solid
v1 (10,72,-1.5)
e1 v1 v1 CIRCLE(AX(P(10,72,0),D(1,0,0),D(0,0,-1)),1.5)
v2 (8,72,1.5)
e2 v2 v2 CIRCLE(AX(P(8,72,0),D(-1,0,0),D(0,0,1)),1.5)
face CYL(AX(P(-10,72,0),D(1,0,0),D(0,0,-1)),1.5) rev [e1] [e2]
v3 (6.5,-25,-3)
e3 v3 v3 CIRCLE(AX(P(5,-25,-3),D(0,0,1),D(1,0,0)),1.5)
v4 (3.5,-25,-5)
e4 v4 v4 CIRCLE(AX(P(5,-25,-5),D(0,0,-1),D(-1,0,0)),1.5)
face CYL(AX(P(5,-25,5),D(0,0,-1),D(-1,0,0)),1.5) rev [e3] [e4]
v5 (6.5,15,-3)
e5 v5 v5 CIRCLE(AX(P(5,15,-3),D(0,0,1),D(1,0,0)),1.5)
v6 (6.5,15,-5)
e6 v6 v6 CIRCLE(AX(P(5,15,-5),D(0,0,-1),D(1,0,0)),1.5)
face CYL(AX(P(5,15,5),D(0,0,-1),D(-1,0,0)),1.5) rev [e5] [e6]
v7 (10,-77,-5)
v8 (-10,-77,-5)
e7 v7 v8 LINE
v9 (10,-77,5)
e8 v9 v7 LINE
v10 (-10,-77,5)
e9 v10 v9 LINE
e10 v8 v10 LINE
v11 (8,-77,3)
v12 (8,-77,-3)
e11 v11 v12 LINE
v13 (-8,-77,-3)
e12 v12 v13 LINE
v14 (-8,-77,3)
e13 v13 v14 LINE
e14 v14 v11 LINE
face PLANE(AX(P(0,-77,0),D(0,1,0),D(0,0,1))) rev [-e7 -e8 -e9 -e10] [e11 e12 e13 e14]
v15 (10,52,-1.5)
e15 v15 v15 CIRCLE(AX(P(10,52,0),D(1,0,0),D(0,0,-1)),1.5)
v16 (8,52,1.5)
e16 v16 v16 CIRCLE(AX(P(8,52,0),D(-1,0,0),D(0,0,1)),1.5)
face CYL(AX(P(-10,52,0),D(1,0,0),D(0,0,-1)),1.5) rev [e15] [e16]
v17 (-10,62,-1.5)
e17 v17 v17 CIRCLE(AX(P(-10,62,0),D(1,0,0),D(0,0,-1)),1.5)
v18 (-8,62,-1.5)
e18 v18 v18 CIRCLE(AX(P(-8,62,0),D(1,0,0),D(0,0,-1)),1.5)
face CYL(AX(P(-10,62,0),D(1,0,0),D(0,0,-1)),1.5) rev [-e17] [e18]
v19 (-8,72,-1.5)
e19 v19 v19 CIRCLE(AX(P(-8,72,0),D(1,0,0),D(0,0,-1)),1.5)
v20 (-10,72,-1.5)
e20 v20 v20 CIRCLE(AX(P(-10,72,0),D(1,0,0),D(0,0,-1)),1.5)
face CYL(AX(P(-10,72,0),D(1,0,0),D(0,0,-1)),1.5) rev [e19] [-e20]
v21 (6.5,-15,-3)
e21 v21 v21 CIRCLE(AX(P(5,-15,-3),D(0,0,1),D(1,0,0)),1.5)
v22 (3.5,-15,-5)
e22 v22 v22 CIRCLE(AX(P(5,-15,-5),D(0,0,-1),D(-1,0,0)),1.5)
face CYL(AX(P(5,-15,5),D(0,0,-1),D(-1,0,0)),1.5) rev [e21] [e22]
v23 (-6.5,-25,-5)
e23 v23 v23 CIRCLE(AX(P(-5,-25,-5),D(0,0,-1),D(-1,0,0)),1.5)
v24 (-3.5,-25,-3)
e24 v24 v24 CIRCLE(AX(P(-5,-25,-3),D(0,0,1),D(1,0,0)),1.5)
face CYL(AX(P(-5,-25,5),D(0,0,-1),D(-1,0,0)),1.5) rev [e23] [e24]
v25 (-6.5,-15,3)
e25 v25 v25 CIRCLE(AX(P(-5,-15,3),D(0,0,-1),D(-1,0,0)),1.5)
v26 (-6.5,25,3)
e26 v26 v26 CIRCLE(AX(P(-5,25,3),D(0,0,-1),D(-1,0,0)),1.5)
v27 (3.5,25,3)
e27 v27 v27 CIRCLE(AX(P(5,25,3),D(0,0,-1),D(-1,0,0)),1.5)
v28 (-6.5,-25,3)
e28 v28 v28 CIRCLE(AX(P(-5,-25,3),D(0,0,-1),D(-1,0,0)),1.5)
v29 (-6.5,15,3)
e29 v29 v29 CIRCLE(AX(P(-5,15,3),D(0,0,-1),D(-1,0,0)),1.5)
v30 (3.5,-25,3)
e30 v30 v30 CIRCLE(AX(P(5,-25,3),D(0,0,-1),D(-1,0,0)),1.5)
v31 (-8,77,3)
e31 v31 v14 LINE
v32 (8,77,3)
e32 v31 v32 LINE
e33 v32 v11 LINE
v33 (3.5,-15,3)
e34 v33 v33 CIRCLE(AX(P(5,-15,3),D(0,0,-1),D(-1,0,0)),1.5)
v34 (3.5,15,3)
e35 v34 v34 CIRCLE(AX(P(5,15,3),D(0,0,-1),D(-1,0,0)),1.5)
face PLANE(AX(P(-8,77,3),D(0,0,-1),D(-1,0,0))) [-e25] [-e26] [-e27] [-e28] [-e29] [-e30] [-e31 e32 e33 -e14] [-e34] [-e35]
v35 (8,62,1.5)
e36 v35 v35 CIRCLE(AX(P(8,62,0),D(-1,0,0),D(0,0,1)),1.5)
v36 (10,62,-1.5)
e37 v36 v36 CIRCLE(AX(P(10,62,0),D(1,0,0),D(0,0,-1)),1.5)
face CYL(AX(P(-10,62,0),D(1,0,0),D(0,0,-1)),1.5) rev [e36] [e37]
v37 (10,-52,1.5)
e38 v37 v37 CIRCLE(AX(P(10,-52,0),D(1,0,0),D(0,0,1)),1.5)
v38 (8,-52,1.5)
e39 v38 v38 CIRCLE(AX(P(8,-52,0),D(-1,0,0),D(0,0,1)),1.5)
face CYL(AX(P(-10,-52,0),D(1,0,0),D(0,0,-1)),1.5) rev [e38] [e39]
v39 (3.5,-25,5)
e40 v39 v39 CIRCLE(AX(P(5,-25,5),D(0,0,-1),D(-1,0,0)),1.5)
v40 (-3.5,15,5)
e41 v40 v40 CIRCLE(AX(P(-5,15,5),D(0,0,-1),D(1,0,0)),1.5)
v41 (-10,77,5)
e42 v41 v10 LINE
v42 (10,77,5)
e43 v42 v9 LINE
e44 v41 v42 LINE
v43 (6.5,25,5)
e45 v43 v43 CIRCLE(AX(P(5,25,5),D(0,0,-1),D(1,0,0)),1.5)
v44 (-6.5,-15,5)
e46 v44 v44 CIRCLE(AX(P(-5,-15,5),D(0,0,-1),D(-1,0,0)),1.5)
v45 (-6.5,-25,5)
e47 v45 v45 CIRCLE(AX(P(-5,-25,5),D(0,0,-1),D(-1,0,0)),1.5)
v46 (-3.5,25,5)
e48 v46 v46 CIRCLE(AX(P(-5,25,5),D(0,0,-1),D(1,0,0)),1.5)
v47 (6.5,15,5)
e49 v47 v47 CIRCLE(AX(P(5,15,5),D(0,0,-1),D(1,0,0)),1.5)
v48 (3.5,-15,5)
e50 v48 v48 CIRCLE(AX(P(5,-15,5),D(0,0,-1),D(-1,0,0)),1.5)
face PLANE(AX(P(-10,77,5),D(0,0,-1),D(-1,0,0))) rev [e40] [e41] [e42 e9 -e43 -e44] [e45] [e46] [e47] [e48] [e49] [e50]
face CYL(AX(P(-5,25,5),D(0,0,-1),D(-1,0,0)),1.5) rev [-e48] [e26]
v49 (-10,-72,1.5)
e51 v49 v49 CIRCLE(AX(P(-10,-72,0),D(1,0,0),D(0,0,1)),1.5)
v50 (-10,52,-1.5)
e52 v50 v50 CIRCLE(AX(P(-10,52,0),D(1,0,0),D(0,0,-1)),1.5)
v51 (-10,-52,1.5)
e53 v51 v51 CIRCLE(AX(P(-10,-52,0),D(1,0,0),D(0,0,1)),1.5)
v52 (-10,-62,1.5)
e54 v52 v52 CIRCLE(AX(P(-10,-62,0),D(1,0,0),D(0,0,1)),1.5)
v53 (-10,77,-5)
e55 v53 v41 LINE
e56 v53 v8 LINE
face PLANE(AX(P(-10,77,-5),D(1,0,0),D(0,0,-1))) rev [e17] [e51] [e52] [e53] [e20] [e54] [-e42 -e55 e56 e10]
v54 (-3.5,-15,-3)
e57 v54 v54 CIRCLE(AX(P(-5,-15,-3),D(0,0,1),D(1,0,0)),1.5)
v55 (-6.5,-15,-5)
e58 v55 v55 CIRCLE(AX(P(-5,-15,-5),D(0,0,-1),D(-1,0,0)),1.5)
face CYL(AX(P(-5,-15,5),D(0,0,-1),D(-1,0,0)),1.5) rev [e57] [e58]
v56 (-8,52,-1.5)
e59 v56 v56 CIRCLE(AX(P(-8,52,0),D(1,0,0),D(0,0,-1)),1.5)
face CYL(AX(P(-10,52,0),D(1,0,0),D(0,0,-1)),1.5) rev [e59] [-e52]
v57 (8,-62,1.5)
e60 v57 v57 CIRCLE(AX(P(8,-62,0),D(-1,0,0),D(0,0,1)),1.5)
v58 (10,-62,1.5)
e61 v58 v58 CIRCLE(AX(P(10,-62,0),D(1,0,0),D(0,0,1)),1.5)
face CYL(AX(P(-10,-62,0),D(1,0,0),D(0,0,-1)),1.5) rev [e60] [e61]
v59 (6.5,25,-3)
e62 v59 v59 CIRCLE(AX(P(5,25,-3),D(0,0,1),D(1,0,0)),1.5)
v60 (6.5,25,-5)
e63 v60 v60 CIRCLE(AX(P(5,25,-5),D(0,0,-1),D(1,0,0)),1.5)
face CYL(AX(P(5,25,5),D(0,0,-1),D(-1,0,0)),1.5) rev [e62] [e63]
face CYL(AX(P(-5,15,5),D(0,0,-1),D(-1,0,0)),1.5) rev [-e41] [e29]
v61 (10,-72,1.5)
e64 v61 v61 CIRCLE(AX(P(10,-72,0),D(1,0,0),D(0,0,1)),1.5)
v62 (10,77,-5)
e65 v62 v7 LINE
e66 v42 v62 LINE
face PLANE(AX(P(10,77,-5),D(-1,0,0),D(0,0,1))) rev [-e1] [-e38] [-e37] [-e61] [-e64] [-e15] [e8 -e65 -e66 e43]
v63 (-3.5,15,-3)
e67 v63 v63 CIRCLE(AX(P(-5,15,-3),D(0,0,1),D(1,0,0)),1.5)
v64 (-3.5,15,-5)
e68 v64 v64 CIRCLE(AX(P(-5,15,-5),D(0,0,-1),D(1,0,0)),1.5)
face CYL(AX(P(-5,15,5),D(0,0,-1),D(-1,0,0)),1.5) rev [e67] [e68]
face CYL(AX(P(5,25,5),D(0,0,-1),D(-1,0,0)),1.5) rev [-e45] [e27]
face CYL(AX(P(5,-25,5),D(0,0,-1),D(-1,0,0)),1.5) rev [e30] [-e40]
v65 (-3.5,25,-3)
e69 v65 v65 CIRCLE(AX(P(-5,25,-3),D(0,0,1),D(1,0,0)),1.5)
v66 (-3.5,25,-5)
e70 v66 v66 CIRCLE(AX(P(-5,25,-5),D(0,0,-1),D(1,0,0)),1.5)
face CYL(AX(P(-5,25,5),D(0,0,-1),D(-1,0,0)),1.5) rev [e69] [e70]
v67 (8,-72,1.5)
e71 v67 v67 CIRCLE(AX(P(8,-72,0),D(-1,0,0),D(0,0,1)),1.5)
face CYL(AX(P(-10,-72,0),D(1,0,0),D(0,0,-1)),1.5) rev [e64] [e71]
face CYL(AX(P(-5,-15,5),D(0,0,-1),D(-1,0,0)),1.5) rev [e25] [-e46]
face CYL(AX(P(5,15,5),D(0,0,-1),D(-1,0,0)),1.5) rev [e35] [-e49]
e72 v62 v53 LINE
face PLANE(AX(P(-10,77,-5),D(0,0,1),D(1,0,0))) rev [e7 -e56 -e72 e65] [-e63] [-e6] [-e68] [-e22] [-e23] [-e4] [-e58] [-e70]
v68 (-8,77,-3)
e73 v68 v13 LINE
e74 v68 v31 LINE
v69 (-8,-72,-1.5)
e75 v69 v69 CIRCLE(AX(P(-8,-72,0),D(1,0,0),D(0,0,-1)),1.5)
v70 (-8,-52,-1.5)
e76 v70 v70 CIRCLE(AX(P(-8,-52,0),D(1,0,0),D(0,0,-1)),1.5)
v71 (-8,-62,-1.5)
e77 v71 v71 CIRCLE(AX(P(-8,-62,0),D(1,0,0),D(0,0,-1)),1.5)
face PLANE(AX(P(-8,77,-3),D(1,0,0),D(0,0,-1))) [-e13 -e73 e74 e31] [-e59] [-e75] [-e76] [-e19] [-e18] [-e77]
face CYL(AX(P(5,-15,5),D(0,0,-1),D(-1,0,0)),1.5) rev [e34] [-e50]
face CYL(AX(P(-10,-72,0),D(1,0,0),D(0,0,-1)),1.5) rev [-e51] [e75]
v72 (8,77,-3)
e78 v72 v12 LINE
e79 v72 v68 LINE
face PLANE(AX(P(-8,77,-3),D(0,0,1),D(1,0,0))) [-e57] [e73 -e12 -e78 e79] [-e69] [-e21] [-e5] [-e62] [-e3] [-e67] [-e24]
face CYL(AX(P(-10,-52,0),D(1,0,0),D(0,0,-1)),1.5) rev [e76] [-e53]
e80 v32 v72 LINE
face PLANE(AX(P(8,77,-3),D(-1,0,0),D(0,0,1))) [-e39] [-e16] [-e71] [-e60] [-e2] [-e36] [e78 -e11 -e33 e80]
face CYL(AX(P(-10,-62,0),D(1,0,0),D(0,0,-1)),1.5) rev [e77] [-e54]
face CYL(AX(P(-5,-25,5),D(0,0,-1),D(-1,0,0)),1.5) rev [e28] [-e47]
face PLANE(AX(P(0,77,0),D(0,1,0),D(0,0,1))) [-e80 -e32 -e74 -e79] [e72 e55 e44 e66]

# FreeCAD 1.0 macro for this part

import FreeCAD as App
import Part
import Sketcher

V = App.Vector
Q = App.Units.Quantity


def add_polygon(sketch, points):
    """Adds a closed chain of lines whose ends are joined by coincident constraints."""
    first, n = sketch.GeometryCount, len(points)
    for a, b in zip(points, points[1:] + points[:1]):
        sketch.addGeometry(Part.LineSegment(App.Vector(*a, 0), App.Vector(*b, 0)), False)
    for i in range(n):
        sketch.addConstraint(Sketcher.Constraint("Coincident", first + i, 2, first + (i + 1) % n, 1))

doc = App.newDocument("Part")
params = doc.addObject("Spreadsheet::Sheet", "Params")
for row, (alias, value) in enumerate([
    ("sketch1_width", "20 mm"),
    ("sketch1_width2", "16 mm"),
    ("sketch1_height", "10 mm"),
    ("sketch1_height2", "6 mm"),
    ("pad1_length", "154 mm"),
    ("sketch2_diameter", "3 mm"),
    ("sketch3_diameter", "3 mm"),
], start=1):
    params.set(f"A{row}", alias)
    params.set(f"B{row}", "=" + value)
    params.setAlias(f"B{row}", alias)

body = doc.addObject("PartDesign::Body", "Body")

sketch1 = body.newObject("Sketcher::SketchObject", "Sketch")
sketch1.AttachmentSupport = (doc.getObject("XZ_Plane"), [""])
sketch1.MapMode = "FlatFace"
add_polygon(sketch1, [(-10, -5), (-10, 5), (10, 5), (10, -5)])
add_polygon(sketch1, [(8, 3), (-8, 3), (-8, -3), (8, -3)])
sketch1.addConstraint([
    Sketcher.Constraint("Vertical", 0),
    Sketcher.Constraint("Horizontal", 1),
    Sketcher.Constraint("Vertical", 2),
    Sketcher.Constraint("Horizontal", 3),
    Sketcher.Constraint("Horizontal", 4),
    Sketcher.Constraint("Vertical", 5),
    Sketcher.Constraint("Horizontal", 6),
    Sketcher.Constraint("Vertical", 7),
    Sketcher.Constraint("Symmetric", 0, 2, 2, 2, -1, 1),
    Sketcher.Constraint("Symmetric", 4, 2, 6, 2, -1, 1),
    Sketcher.Constraint("DistanceX", 1, 1, 1, 2, Q("20 mm")),
    Sketcher.Constraint("DistanceX", 4, 2, 4, 1, Q("16 mm")),
    Sketcher.Constraint("DistanceY", 0, 1, 0, 2, Q("10 mm")),
    Sketcher.Constraint("DistanceY", 5, 2, 5, 1, Q("6 mm")),
])
sketch1.setExpression("Constraints[18]", "Params.sketch1_width")
sketch1.setExpression("Constraints[19]", "Params.sketch1_width2")
sketch1.setExpression("Constraints[20]", "Params.sketch1_height")
sketch1.setExpression("Constraints[21]", "Params.sketch1_height2")
pad1 = body.newObject("PartDesign::Pad", "Pad")
pad1.Profile = sketch1
pad1.setExpression("Length", "Params.pad1_length")
pad1.Midplane = True

sketch2 = body.newObject("Sketcher::SketchObject", "Sketch001")
sketch2.AttachmentSupport = (doc.getObject("YZ_Plane"), [""])
sketch2.MapMode = "FlatFace"
sketch2.AttachmentOffset = App.Placement(V(0, 0, 10), App.Rotation())
sketch2.addGeometry([
    Part.Circle(V(52, 0, 0), V(0, 0, 1), 1.5),
    Part.Circle(V(72, 0, 0), V(0, 0, 1), 1.5),
    Part.Circle(V(62, 0, 0), V(0, 0, 1), 1.5),
    Part.Circle(V(-72, 0, 0), V(0, 0, 1), 1.5),
    Part.Circle(V(-62, 0, 0), V(0, 0, 1), 1.5),
    Part.Circle(V(-52, 0, 0), V(0, 0, 1), 1.5),
], False)
sketch2.addConstraint([
    Sketcher.Constraint("Equal", 0, 1),
    Sketcher.Constraint("Equal", 1, 2),
    Sketcher.Constraint("Equal", 2, 3),
    Sketcher.Constraint("Equal", 3, 4),
    Sketcher.Constraint("Equal", 4, 5),
    Sketcher.Constraint("Symmetric", 1, 3, 3, 3, -1, 1),
    Sketcher.Constraint("Symmetric", 2, 3, 4, 3, -1, 1),
    Sketcher.Constraint("Symmetric", 0, 3, 5, 3, -1, 1),
    Sketcher.Constraint("PointOnObject", 0, 3, -1),
    Sketcher.Constraint("PointOnObject", 1, 3, -1),
    Sketcher.Constraint("PointOnObject", 2, 3, -1),
    Sketcher.Constraint("Diameter", 0, Q("3 mm")),
    Sketcher.Constraint("DistanceX", -1, 1, 0, 3, Q("52 mm")),
    Sketcher.Constraint("DistanceX", -1, 1, 1, 3, Q("72 mm")),
    Sketcher.Constraint("DistanceX", -1, 1, 2, 3, Q("62 mm")),
])
sketch2.setExpression("Constraints[11]", "Params.sketch2_diameter")
pocket1 = body.newObject("PartDesign::Pocket", "Pocket")
pocket1.Profile = sketch2
pocket1.Type = "ThroughAll"

sketch3 = body.newObject("Sketcher::SketchObject", "Sketch002")
sketch3.AttachmentSupport = (doc.getObject("XY_Plane"), [""])
sketch3.MapMode = "FlatFace"
sketch3.AttachmentOffset = App.Placement(V(0, 0, -5), App.Rotation())
sketch3.addGeometry([
    Part.Circle(V(-5, -15, 0), V(0, 0, 1), 1.5),
    Part.Circle(V(5, -15, 0), V(0, 0, 1), 1.5),
    Part.Circle(V(5, -25, 0), V(0, 0, 1), 1.5),
    Part.Circle(V(-5, -25, 0), V(0, 0, 1), 1.5),
    Part.Circle(V(5, 25, 0), V(0, 0, 1), 1.5),
    Part.Circle(V(-5, 25, 0), V(0, 0, 1), 1.5),
    Part.Circle(V(-5, 15, 0), V(0, 0, 1), 1.5),
    Part.Circle(V(5, 15, 0), V(0, 0, 1), 1.5),
], False)
sketch3.addConstraint([
    Sketcher.Constraint("Equal", 0, 1),
    Sketcher.Constraint("Equal", 1, 2),
    Sketcher.Constraint("Equal", 2, 3),
    Sketcher.Constraint("Equal", 3, 4),
    Sketcher.Constraint("Equal", 4, 5),
    Sketcher.Constraint("Equal", 5, 6),
    Sketcher.Constraint("Equal", 6, 7),
    Sketcher.Constraint("Symmetric", 3, 3, 4, 3, -1, 1),
    Sketcher.Constraint("Symmetric", 2, 3, 5, 3, -1, 1),
    Sketcher.Constraint("Symmetric", 1, 3, 6, 3, -1, 1),
    Sketcher.Constraint("Symmetric", 0, 3, 7, 3, -1, 1),
    Sketcher.Constraint("Symmetric", 0, 3, 1, 3, -2),
    Sketcher.Constraint("Symmetric", 2, 3, 3, 3, -2),
    Sketcher.Constraint("Vertical", 1, 3, 2, 3),
    Sketcher.Constraint("Diameter", 0, Q("3 mm")),
    Sketcher.Constraint("DistanceX", 0, 3, -1, 1, Q("5 mm")),
    Sketcher.Constraint("DistanceY", 0, 3, -1, 1, Q("15 mm")),
    Sketcher.Constraint("DistanceY", 2, 3, -1, 1, Q("25 mm")),
])
sketch3.setExpression("Constraints[14]", "Params.sketch3_diameter")
pocket2 = body.newObject("PartDesign::Pocket", "Pocket001")
pocket2.Profile = sketch3
pocket2.Type = "ThroughAll"
pocket2.Reversed = True

doc.recompute()
